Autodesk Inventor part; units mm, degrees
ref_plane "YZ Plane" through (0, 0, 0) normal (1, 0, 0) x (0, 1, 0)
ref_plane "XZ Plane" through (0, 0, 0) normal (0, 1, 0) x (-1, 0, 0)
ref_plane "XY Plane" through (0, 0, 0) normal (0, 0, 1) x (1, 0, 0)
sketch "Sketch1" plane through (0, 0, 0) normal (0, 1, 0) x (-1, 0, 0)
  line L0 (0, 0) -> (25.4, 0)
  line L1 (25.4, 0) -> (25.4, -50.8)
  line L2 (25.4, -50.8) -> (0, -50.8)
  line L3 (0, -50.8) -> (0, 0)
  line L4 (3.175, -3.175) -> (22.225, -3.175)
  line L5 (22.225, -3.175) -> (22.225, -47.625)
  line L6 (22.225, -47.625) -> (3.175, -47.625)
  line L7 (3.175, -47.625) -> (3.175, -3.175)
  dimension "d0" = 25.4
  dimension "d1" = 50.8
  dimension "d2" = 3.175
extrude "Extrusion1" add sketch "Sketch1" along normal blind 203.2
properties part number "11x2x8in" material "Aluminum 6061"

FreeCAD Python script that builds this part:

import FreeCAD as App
import Part
import Sketcher
Q = App.Units.Quantity


def add_polygon(sketch, points):
    """Adds a closed chain of lines whose ends are joined by coincident constraints."""
    first, n = sketch.GeometryCount, len(points)
    for a, b in zip(points, points[1:] + points[:1]):
        sketch.addGeometry(Part.LineSegment(App.Vector(*a, 0), App.Vector(*b, 0)), False)
    for i in range(n):
        sketch.addConstraint(Sketcher.Constraint("Coincident", first + i, 2, first + (i + 1) % n, 1))

doc = App.newDocument("Part")
params = doc.addObject("Spreadsheet::Sheet", "Params")
for row, (alias, value) in enumerate([
    ("sketch1_width", "1 in"),
    ("sketch1_height", "2 in"),
    ("pad1_length", "8 in"),
], start=1):
    params.set(f"A{row}", alias)
    params.set(f"B{row}", "=" + value)
    params.setAlias(f"B{row}", alias)

body = doc.addObject("PartDesign::Body", "Body")

# Sketch on XZ plane
sketch1 = doc.addObject("Sketcher::SketchObject", "Sketch")
body.addObject(sketch1)
sketch1.AttachmentSupport = (doc.XZ_Plane, [""])
sketch1.MapMode = "FlatFace"
add_polygon(sketch1, [(-25, 0), (0, 0), (0, -51), (-25, -51)])  # lines 0-3
add_polygon(sketch1, [(-3, -48), (-3, -3), (-22, -3), (-22, -48)])  # lines 4-7
sketch1.addConstraint([
    Sketcher.Constraint("Horizontal", 0),
    Sketcher.Constraint("Vertical", 1),
    Sketcher.Constraint("Horizontal", 2),
    Sketcher.Constraint("Vertical", 3),
    Sketcher.Constraint("Vertical", 4),
    Sketcher.Constraint("Horizontal", 5),
    Sketcher.Constraint("Vertical", 6),
    Sketcher.Constraint("Horizontal", 7),
    Sketcher.Constraint("Coincident", 0, 2, -1, 1),
    Sketcher.Constraint("DistanceX", 0, 1, 0, 2, Q("1 in")),
    Sketcher.Constraint("DistanceY", 1, 2, 1, 1, Q("2 in")),
    Sketcher.Constraint("DistanceX", 4, 2, -1, 1, Q("0.125 in")),
    Sketcher.Constraint("DistanceY", 4, 2, -1, 1, Q("0.125 in")),
    Sketcher.Constraint("DistanceX", 3, 2, 5, 2, Q("0.125 in")),
    Sketcher.Constraint("DistanceY", 2, 2, 6, 2, Q("0.125 in")),
])
sketch1.setExpression("Constraints[17]", "Params.sketch1_width")
sketch1.setExpression("Constraints[18]", "Params.sketch1_height")
pad1 = doc.addObject("PartDesign::Pad", "Pad")
body.addObject(pad1)
pad1.Profile = sketch1
pad1.setExpression("Length", "Params.pad1_length")
pad1.Reversed = True

doc.recompute()
